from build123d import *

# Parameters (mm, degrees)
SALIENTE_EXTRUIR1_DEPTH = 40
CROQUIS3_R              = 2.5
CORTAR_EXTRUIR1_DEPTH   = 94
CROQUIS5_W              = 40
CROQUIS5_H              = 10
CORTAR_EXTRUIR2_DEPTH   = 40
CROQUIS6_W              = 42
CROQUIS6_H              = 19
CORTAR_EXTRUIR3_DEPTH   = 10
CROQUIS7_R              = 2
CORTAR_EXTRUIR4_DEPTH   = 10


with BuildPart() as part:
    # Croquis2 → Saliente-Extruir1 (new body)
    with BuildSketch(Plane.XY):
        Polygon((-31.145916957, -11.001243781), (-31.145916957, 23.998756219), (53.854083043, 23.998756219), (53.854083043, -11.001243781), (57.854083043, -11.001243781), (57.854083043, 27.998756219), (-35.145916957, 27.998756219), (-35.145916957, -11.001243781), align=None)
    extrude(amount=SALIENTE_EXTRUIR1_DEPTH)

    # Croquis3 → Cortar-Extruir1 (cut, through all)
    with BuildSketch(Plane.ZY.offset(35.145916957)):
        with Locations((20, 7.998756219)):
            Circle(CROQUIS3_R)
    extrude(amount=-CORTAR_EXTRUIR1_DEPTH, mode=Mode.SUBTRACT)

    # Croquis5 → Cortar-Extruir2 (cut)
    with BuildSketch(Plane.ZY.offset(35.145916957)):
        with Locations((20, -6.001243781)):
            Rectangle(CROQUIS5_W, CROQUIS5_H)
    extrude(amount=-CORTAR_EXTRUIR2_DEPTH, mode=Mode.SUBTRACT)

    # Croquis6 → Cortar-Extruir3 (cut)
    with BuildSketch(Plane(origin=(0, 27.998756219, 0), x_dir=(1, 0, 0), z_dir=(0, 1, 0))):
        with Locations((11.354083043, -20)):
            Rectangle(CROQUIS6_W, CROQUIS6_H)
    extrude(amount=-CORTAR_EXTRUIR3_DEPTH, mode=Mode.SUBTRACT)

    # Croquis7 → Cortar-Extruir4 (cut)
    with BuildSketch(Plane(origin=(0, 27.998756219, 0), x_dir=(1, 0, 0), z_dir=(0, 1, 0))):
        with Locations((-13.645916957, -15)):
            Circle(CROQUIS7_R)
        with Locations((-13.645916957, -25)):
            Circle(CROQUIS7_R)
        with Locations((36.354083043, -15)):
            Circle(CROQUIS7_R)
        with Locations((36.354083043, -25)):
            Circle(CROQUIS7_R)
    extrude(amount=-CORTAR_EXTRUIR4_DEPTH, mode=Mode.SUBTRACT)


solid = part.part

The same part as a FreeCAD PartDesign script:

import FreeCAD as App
import Part
import Sketcher
from FreeCAD import Vector
Q = App.Units.Quantity


def add_polygon(sketch, points):
    """Adds a closed chain of lines whose ends are joined by coincident constraints."""
    first, n = sketch.GeometryCount, len(points)
    for a, b in zip(points, points[1:] + points[:1]):
        sketch.addGeometry(Part.LineSegment(App.Vector(*a, 0), App.Vector(*b, 0)), False)
    for i in range(n):
        sketch.addConstraint(Sketcher.Constraint("Coincident", first + i, 2, first + (i + 1) % n, 1))

doc = App.newDocument("Part")
params = doc.addObject("Spreadsheet::Sheet", "Params")
for row, (alias, value) in enumerate([
    ("sketch1_width", "85 mm"),
    ("sketch1_width2", "4 mm"),
    ("sketch1_height", "35 mm"),
    ("sketch1_height2", "39 mm"),
    ("pad1_length", "40 mm"),
    ("sketch2_diameter", "5 mm"),
    ("sketch3_width", "10 mm"),
    ("sketch3_height", "40 mm"),
    ("pocket2_length", "40 mm"),
    ("sketch4_width", "42 mm"),
    ("sketch4_height", "19 mm"),
    ("pocket3_length", "10 mm"),
    ("sketch5_diameter", "4 mm"),
    ("pocket4_length", "10 mm"),
], start=1):
    params.set(f"A{row}", alias)
    params.set(f"B{row}", "=" + value)
    params.setAlias(f"B{row}", alias)

body = doc.addObject("PartDesign::Body", "Body")

sketch1 = doc.addObject("Sketcher::SketchObject", "Sketch")
body.addObject(sketch1)
sketch1.AttachmentSupport = (doc.XY_Plane, [""])
sketch1.MapMode = "FlatFace"
add_polygon(sketch1, [(-31.145917, -11.001244), (-31.145917, 23.998756), (53.854083, 23.998756), (53.854083, -11.001244), (57.854083, -11.001244), (57.854083, 27.998756), (-35.145917, 27.998756), (-35.145917, -11.001244)])
sketch1.addConstraint([
    Sketcher.Constraint("Vertical", 0),
    Sketcher.Constraint("Horizontal", 1),
    Sketcher.Constraint("Vertical", 2),
    Sketcher.Constraint("Horizontal", 3),
    Sketcher.Constraint("Vertical", 4),
    Sketcher.Constraint("Horizontal", 5),
    Sketcher.Constraint("Vertical", 6),
    Sketcher.Constraint("Horizontal", 7),
    Sketcher.Constraint("Horizontal", 3, 2, 6, 2),
    Sketcher.Constraint("Equal", 3, 7),
    Sketcher.Constraint("DistanceX", 1, 1, 1, 2, Q("85 mm")),
    Sketcher.Constraint("DistanceX", 3, 1, 3, 2, Q("4 mm")),
    Sketcher.Constraint("DistanceY", 0, 1, 0, 2, Q("35 mm")),
    Sketcher.Constraint("DistanceY", 4, 1, 4, 2, Q("39 mm")),
    Sketcher.Constraint("DistanceX", 0, 2, -1, 1, Q("31.145917 mm")),
    Sketcher.Constraint("DistanceY", -1, 1, 0, 2, Q("23.998756 mm")),
])
sketch1.setExpression("Constraints[18]", "Params.sketch1_width")
sketch1.setExpression("Constraints[19]", "Params.sketch1_width2")
sketch1.setExpression("Constraints[20]", "Params.sketch1_height")
sketch1.setExpression("Constraints[21]", "Params.sketch1_height2")
pad1 = doc.addObject("PartDesign::Pad", "Pad")
body.addObject(pad1)
pad1.Profile = sketch1
pad1.setExpression("Length", "Params.pad1_length")

sketch2 = doc.addObject("Sketcher::SketchObject", "Sketch001")
body.addObject(sketch2)
sketch2.AttachmentSupport = (doc.YZ_Plane, [""])
sketch2.MapMode = "FlatFace"
sketch2.AttachmentOffset = App.Placement(Vector(0, 0, -35.145917), App.Rotation())
sketch2.addGeometry(Part.Circle(Vector(7.998756, 20, 0), Vector(0, 0, 1), 2.5), False)
sketch2.addConstraint([
    Sketcher.Constraint("Diameter", 0, Q("5 mm")),
    Sketcher.Constraint("DistanceY", -1, 1, 0, 3, Q("20 mm")),
    Sketcher.Constraint("DistanceX", -1, 1, 0, 3, Q("7.998756 mm")),
])
sketch2.setExpression("Constraints[0]", "Params.sketch2_diameter")
pocket1 = doc.addObject("PartDesign::Pocket", "Pocket")
body.addObject(pocket1)
pocket1.Profile = sketch2
pocket1.Type = "ThroughAll"
pocket1.Reversed = True

sketch3 = doc.addObject("Sketcher::SketchObject", "Sketch002")
body.addObject(sketch3)
sketch3.AttachmentSupport = (doc.YZ_Plane, [""])
sketch3.MapMode = "FlatFace"
sketch3.AttachmentOffset = App.Placement(Vector(0, 0, -35.145917), App.Rotation())
add_polygon(sketch3, [(-1.001244, 0), (-11.001244, 0), (-11.001244, 40), (-1.001244, 40)])
sketch3.addConstraint([
    Sketcher.Constraint("Horizontal", 0),
    Sketcher.Constraint("Vertical", 1),
    Sketcher.Constraint("Horizontal", 2),
    Sketcher.Constraint("Vertical", 3),
    Sketcher.Constraint("PointOnObject", 0, 2, -1),
    Sketcher.Constraint("DistanceX", 0, 2, 0, 1, Q("10 mm")),
    Sketcher.Constraint("DistanceY", 1, 1, 1, 2, Q("40 mm")),
    Sketcher.Constraint("DistanceX", 0, 2, -1, 1, Q("11.001244 mm")),
])
sketch3.setExpression("Constraints[9]", "Params.sketch3_width")
sketch3.setExpression("Constraints[10]", "Params.sketch3_height")
pocket2 = doc.addObject("PartDesign::Pocket", "Pocket001")
body.addObject(pocket2)
pocket2.Profile = sketch3
pocket2.setExpression("Length", "Params.pocket2_length")
pocket2.Reversed = True

sketch4 = doc.addObject("Sketcher::SketchObject", "Sketch003")
body.addObject(sketch4)
sketch4.AttachmentSupport = (doc.XZ_Plane, [""])
sketch4.MapMode = "FlatFace"
sketch4.AttachmentOffset = App.Placement(Vector(0, 0, -27.998756), App.Rotation())
add_polygon(sketch4, [(-9.645917, 10.5), (-9.645917, 29.5), (32.354083, 29.5), (32.354083, 10.5)])
sketch4.addConstraint([
    Sketcher.Constraint("Vertical", 0),
    Sketcher.Constraint("Horizontal", 1),
    Sketcher.Constraint("Vertical", 2),
    Sketcher.Constraint("Horizontal", 3),
    Sketcher.Constraint("DistanceX", 1, 1, 1, 2, Q("42 mm")),
    Sketcher.Constraint("DistanceY", 0, 1, 0, 2, Q("19 mm")),
    Sketcher.Constraint("DistanceY", -1, 1, 0, 2, Q("29.5 mm")),
    Sketcher.Constraint("DistanceX", 0, 2, -1, 1, Q("9.645917 mm")),
])
sketch4.setExpression("Constraints[8]", "Params.sketch4_width")
sketch4.setExpression("Constraints[9]", "Params.sketch4_height")
pocket3 = doc.addObject("PartDesign::Pocket", "Pocket002")
body.addObject(pocket3)
pocket3.Profile = sketch4
pocket3.setExpression("Length", "Params.pocket3_length")
pocket3.Reversed = True

sketch5 = doc.addObject("Sketcher::SketchObject", "Sketch004")
body.addObject(sketch5)
sketch5.AttachmentSupport = (doc.XZ_Plane, [""])
sketch5.MapMode = "FlatFace"
sketch5.AttachmentOffset = App.Placement(Vector(0, 0, -27.998756), App.Rotation())
sketch5.addGeometry([
    Part.Circle(Vector(-13.645917, 15, 0), Vector(0, 0, 1), 2),
    Part.Circle(Vector(-13.645917, 25, 0), Vector(0, 0, 1), 2),
    Part.Circle(Vector(36.354083, 15, 0), Vector(0, 0, 1), 2),
    Part.Circle(Vector(36.354083, 25, 0), Vector(0, 0, 1), 2),
], False)
sketch5.addConstraint([
    Sketcher.Constraint("Equal", 0, 1),
    Sketcher.Constraint("Equal", 1, 2),
    Sketcher.Constraint("Equal", 2, 3),
    Sketcher.Constraint("Horizontal", 0, 3, 2, 3),
    Sketcher.Constraint("Horizontal", 1, 3, 3, 3),
    Sketcher.Constraint("Vertical", 0, 3, 1, 3),
    Sketcher.Constraint("Vertical", 2, 3, 3, 3),
    Sketcher.Constraint("Diameter", 0, Q("4 mm")),
    Sketcher.Constraint("DistanceY", -1, 1, 0, 3, Q("15 mm")),
    Sketcher.Constraint("DistanceY", -1, 1, 1, 3, Q("25 mm")),
    Sketcher.Constraint("DistanceX", 0, 3, 2, 3, Q("50 mm")),
    Sketcher.Constraint("DistanceX", 0, 3, -1, 1, Q("13.645917 mm")),
])
sketch5.setExpression("Constraints[7]", "Params.sketch5_diameter")
pocket4 = doc.addObject("PartDesign::Pocket", "Pocket003")
body.addObject(pocket4)
pocket4.Profile = sketch5
pocket4.setExpression("Length", "Params.pocket4_length")
pocket4.Reversed = True

doc.recompute()
